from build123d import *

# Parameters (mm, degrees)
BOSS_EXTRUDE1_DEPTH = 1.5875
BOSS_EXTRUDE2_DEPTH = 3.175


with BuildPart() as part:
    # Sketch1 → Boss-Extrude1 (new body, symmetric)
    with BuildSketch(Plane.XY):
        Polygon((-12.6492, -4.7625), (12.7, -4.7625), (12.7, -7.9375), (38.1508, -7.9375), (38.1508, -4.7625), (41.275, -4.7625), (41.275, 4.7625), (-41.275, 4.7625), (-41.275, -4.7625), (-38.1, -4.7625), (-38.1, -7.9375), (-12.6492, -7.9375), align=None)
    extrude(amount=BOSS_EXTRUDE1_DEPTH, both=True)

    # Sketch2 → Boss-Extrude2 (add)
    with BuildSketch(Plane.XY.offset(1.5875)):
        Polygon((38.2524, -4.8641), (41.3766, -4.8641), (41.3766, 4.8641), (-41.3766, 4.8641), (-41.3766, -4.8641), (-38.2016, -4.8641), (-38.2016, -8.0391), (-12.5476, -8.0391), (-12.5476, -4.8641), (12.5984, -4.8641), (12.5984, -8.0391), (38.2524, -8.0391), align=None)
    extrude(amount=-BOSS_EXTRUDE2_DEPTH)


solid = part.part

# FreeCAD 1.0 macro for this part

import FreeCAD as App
import Part
import Sketcher
Q = App.Units.Quantity


def add_polygon(sketch, points):
    """Adds a closed chain of lines whose ends are joined by coincident constraints."""
    first, n = sketch.GeometryCount, len(points)
    for a, b in zip(points, points[1:] + points[:1]):
        sketch.addGeometry(Part.LineSegment(App.Vector(*a, 0), App.Vector(*b, 0)), False)
    for i in range(n):
        sketch.addConstraint(Sketcher.Constraint("Coincident", first + i, 2, first + (i + 1) % n, 1))

doc = App.newDocument("Part")
params = doc.addObject("Spreadsheet::Sheet", "Params")
for row, (alias, value) in enumerate([
    ("sketch1_width", "3.25 in"),
    ("sketch1_width2", "0.998 in"),
    ("pad1_length", "0.125 in"),
    ("sketch2_width", "1.01 in"),
    ("sketch2_width2", "0.123 in"),
    ("sketch2_width3", "3.258 in"),
    ("sketch2_height", "0.383 in"),
    ("pad2_length", "0.125 in"),
], start=1):
    params.set(f"A{row}", alias)
    params.set(f"B{row}", "=" + value)
    params.setAlias(f"B{row}", alias)

body = doc.addObject("PartDesign::Body", "Body")

# Sketch on XY plane
sketch1 = doc.addObject("Sketcher::SketchObject", "Sketch")
body.addObject(sketch1)
sketch1.AttachmentSupport = (doc.XY_Plane, [""])
sketch1.MapMode = "FlatFace"
add_polygon(sketch1, [(-12.6492, -4.7625), (12.7, -4.7625), (12.7, -7.9375), (38.1508, -7.9375), (38.1508, -4.7625), (41.275, -4.7625), (41.275, 4.7625), (-41.275, 4.7625), (-41.275, -4.7625), (-38.1, -4.7625), (-38.1, -7.9375), (-12.6492, -7.9375)])  # lines 0-11
sketch1.addConstraint([
    Sketcher.Constraint("Horizontal", 0),
    Sketcher.Constraint("Vertical", 1),
    Sketcher.Constraint("Horizontal", 2),
    Sketcher.Constraint("Vertical", 3),
    Sketcher.Constraint("Horizontal", 4),
    Sketcher.Constraint("Vertical", 5),
    Sketcher.Constraint("Horizontal", 6),
    Sketcher.Constraint("Vertical", 7),
    Sketcher.Constraint("Horizontal", 8),
    Sketcher.Constraint("Vertical", 9),
    Sketcher.Constraint("Horizontal", 10),
    Sketcher.Constraint("Vertical", 11),
    Sketcher.Constraint("Symmetric", 4, 2, 6, 2, -1, 1),
    Sketcher.Constraint("Horizontal", 0, 2, 3, 2),
    Sketcher.Constraint("Horizontal", 4, 2, 7, 2),
    Sketcher.Constraint("Horizontal", 2, 2, 9, 2),
    Sketcher.Constraint("Equal", 2, 10),
    Sketcher.Constraint("Equal", 8, 1),
    Sketcher.Constraint("DistanceX", 8, 2, 0, 2, Q("2 in")),
    Sketcher.Constraint("DistanceX", 6, 2, 6, 1, Q("3.25 in")),
    Sketcher.Constraint("DistanceX", -1, 1, 0, 2, Q("0.5 in")),
    Sketcher.Constraint("DistanceY", 2, 2, 5, 2, Q("0.5 in")),
    Sketcher.Constraint("DistanceX", 0, 1, 0, 2, Q("0.998 in")),
])
sketch1.setExpression("Constraints[31]", "Params.sketch1_width")
sketch1.setExpression("Constraints[34]", "Params.sketch1_width2")
pad1 = doc.addObject("PartDesign::Pad", "Pad")
body.addObject(pad1)
pad1.Profile = sketch1
pad1.setExpression("Length", "Params.pad1_length")
pad1.Midplane = True

# Sketch on XY plane
sketch2 = doc.addObject("Sketcher::SketchObject", "Sketch001")
body.addObject(sketch2)
sketch2.AttachmentSupport = (doc.XY_Plane, [""])
sketch2.MapMode = "FlatFace"
sketch2.AttachmentOffset = App.Placement(App.Vector(0, 0, 0.0625 * 25.4), App.Rotation())
add_polygon(sketch2, [(38.2524, -4.8641), (41.3766, -4.8641), (41.3766, 4.8641), (-41.3766, 4.8641), (-41.3766, -4.8641), (-38.2016, -4.8641), (-38.2016, -8.0391), (-12.5476, -8.0391), (-12.5476, -4.8641), (12.5984, -4.8641), (12.5984, -8.0391), (38.2524, -8.0391)])  # lines 0-11
sketch2.addConstraint([
    Sketcher.Constraint("Horizontal", 0),
    Sketcher.Constraint("Vertical", 1),
    Sketcher.Constraint("Horizontal", 2),
    Sketcher.Constraint("Vertical", 3),
    Sketcher.Constraint("Horizontal", 4),
    Sketcher.Constraint("Vertical", 5),
    Sketcher.Constraint("Horizontal", 6),
    Sketcher.Constraint("Vertical", 7),
    Sketcher.Constraint("Horizontal", 8),
    Sketcher.Constraint("Vertical", 9),
    Sketcher.Constraint("Horizontal", 10),
    Sketcher.Constraint("Vertical", 11),
    Sketcher.Constraint("Symmetric", 0, 2, 2, 2, -1, 1),
    Sketcher.Constraint("Horizontal", 0, 2, 3, 2),
    Sketcher.Constraint("Horizontal", 4, 2, 7, 2),
    Sketcher.Constraint("Horizontal", 6, 2, 9, 2),
    Sketcher.Constraint("Equal", 6, 10),
    Sketcher.Constraint("Equal", 4, 5),
    Sketcher.Constraint("DistanceX", 4, 2, 8, 2, Q("2 in")),
    Sketcher.Constraint("DistanceX", 6, 1, 6, 2, Q("1.01 in")),
    Sketcher.Constraint("DistanceX", 0, 1, 0, 2, Q("0.123 in")),
    Sketcher.Constraint("DistanceX", 2, 2, 2, 1, Q("3.258 in")),
    Sketcher.Constraint("DistanceY", 1, 1, 1, 2, Q("0.383 in")),
])
sketch2.setExpression("Constraints[31]", "Params.sketch2_width")
sketch2.setExpression("Constraints[32]", "Params.sketch2_width2")
sketch2.setExpression("Constraints[33]", "Params.sketch2_width3")
sketch2.setExpression("Constraints[34]", "Params.sketch2_height")
pad2 = doc.addObject("PartDesign::Pad", "Pad001")
body.addObject(pad2)
pad2.Profile = sketch2
pad2.setExpression("Length", "Params.pad2_length")
pad2.Reversed = True

doc.recompute()
